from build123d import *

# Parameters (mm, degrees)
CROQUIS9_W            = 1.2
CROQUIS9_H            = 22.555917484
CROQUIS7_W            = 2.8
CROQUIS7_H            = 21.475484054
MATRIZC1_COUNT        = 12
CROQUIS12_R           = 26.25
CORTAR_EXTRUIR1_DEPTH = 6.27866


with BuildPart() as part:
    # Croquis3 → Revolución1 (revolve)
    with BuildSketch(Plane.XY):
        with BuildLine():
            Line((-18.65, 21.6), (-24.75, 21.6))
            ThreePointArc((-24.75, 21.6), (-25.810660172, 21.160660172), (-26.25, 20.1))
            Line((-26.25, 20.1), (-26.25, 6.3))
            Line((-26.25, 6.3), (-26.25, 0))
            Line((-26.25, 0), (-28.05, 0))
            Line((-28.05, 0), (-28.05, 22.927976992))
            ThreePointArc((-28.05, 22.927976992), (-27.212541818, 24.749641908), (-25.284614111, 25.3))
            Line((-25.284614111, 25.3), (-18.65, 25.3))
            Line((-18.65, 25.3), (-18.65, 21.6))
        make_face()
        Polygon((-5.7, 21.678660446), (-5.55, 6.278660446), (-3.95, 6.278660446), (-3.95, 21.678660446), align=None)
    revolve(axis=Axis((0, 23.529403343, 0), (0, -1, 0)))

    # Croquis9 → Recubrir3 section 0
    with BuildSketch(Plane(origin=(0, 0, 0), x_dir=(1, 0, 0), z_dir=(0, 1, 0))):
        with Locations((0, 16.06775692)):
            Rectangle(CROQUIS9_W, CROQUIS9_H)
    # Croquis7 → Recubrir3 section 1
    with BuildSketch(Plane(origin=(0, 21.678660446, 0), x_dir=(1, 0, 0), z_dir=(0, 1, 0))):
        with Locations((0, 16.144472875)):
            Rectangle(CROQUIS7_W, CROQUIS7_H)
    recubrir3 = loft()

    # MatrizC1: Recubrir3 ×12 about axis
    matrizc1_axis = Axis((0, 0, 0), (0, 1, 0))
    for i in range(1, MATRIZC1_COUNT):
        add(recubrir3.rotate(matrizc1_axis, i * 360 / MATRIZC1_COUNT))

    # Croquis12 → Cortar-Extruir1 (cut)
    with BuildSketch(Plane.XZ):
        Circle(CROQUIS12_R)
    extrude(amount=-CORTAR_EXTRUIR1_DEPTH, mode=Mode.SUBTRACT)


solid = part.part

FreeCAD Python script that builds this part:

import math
import FreeCAD as App
import Part
import Sketcher
from FreeCAD import Vector
Q = App.Units.Quantity

doc = App.newDocument("Part")
params = doc.addObject("Spreadsheet::Sheet", "Params")
for row, (alias, value) in enumerate([
    ("sketch1_radius", "2.4 mm"),
    ("sketch1_radius2", "1.5 mm"),
    ("sketch1_width", "6.1 mm"),
    ("sketch1_width2", "1.8 mm"),
    ("sketch1_width3", "1.6 mm"),
    ("revolution_angle", "360 deg"),
    ("sketch2_width", "1.2 mm"),
    ("sketch3_width", "2.8 mm"),
    ("sketch4_diameter", "52.5 mm"),
    ("pocket1_length", "6.27866 mm"),
], start=1):
    params.set(f"A{row}", alias)
    params.set(f"B{row}", "=" + value)
    params.setAlias(f"B{row}", alias)

body = doc.addObject("PartDesign::Body", "Body")
body.AllowCompound = True

# Sketch on XY plane
sketch1 = body.newObject("Sketcher::SketchObject", "Sketch")
sketch1.AttachmentSupport = (doc.getObject("XY_Plane"), [""])
sketch1.MapMode = "FlatFace"
sketch1.addGeometry(Part.LineSegment(Vector(-24.8, 21.6, 0), Vector(-18.6, 21.6, 0)), False)
sketch1.addGeometry(Part.LineSegment(Vector(-18.6, 21.6, 0), Vector(-18.6, 25.3, 0)), False)
sketch1.addGeometry(Part.LineSegment(Vector(-18.6, 25.3, 0), Vector(-25.3, 25.3, 0)), False)
sketch1.addGeometry(Part.ArcOfCircle(Part.Circle(Vector(-25.6, 22.9, 0), Vector(0, 0, 1), 2.4), math.radians(81), math.radians(180)), False)
sketch1.addGeometry(Part.LineSegment(Vector(-28.1, 22.9, 0), Vector(-28.1, 0, 0)), False)
sketch1.addGeometry(Part.LineSegment(Vector(-28.1, 0, 0), Vector(-26.2, 0, 0)), False)
sketch1.addGeometry(Part.LineSegment(Vector(-26.2, 0, 0), Vector(-26.2, 20.1, 0)), False)
sketch1.addGeometry(Part.ArcOfCircle(Part.Circle(Vector(-24.8, 20.1, 0), Vector(0, 0, 1), 1.5), math.radians(90), math.radians(180)), False)
sketch1.addGeometry(Part.LineSegment(Vector(-5.7, 21.7, 0), Vector(-5.5, 6.3, 0)), False)
sketch1.addGeometry(Part.LineSegment(Vector(-5.5, 6.3, 0), Vector(-4, 6.3, 0)), False)
sketch1.addGeometry(Part.LineSegment(Vector(-4, 6.3, 0), Vector(-4, 21.7, 0)), False)
sketch1.addGeometry(Part.LineSegment(Vector(-4, 21.7, 0), Vector(-5.7, 21.7, 0)), False)
sketch1.addConstraint(Sketcher.Constraint("Coincident", 0, 2, 1, 1))
sketch1.addConstraint(Sketcher.Constraint("Coincident", 1, 2, 2, 1))
sketch1.addConstraint(Sketcher.Constraint("Coincident", 2, 2, 3, 1))
sketch1.addConstraint(Sketcher.Constraint("Tangent", 3, 2, 4, 1))
sketch1.addConstraint(Sketcher.Constraint("Coincident", 4, 2, 5, 1))
sketch1.addConstraint(Sketcher.Constraint("Coincident", 5, 2, 6, 1))
sketch1.addConstraint(Sketcher.Constraint("Tangent", 6, 2, 7, 2))
sketch1.addConstraint(Sketcher.Constraint("Tangent", 7, 1, 0, 1))
sketch1.addConstraint(Sketcher.Constraint("Coincident", 8, 2, 9, 1))
sketch1.addConstraint(Sketcher.Constraint("Coincident", 9, 2, 10, 1))
sketch1.addConstraint(Sketcher.Constraint("Coincident", 10, 2, 11, 1))
sketch1.addConstraint(Sketcher.Constraint("Coincident", 11, 2, 8, 1))
sketch1.addConstraint(Sketcher.Constraint("Horizontal", 0))
sketch1.addConstraint(Sketcher.Constraint("Vertical", 1))
sketch1.addConstraint(Sketcher.Constraint("Horizontal", 2))
sketch1.addConstraint(Sketcher.Constraint("Vertical", 4))
sketch1.addConstraint(Sketcher.Constraint("Horizontal", 5))
sketch1.addConstraint(Sketcher.Constraint("Vertical", 6))
sketch1.addConstraint(Sketcher.Constraint("Horizontal", 9))
sketch1.addConstraint(Sketcher.Constraint("Vertical", 10))
sketch1.addConstraint(Sketcher.Constraint("Horizontal", 11))
sketch1.addConstraint(Sketcher.Constraint("PointOnObject", 4, 2, -1))
sketch1.addConstraint(Sketcher.Constraint("Radius", 3, Q("2.4 mm")))
sketch1.addConstraint(Sketcher.Constraint("Radius", 7, Q("1.5 mm")))
sketch1.addConstraint(Sketcher.Constraint("DistanceX", 0, 1, 0, 2, Q("6.1 mm")))
sketch1.addConstraint(Sketcher.Constraint("DistanceX", 5, 1, 5, 2, Q("1.8 mm")))
sketch1.addConstraint(Sketcher.Constraint("DistanceX", 9, 1, 9, 2, Q("1.6 mm")))
sketch1.addConstraint(Sketcher.Constraint("DistanceY", 1, 1, 1, 2, Q("3.7 mm")))
sketch1.addConstraint(Sketcher.Constraint("DistanceY", 6, 1, 6, 2, Q("20.1 mm")))
sketch1.addConstraint(Sketcher.Constraint("DistanceY", 10, 1, 10, 2, Q("15.4 mm")))
sketch1.addConstraint(Sketcher.Constraint("DistanceX", 11, 2, 11, 1, Q("1.75 mm")))
sketch1.addConstraint(Sketcher.Constraint("DistanceX", 11, 2, -1, 1, Q("5.7 mm")))
sketch1.addConstraint(Sketcher.Constraint("DistanceX", 0, 2, 8, 2, Q("13.1 mm")))
sketch1.addConstraint(Sketcher.Constraint("DistanceX", 2, 2, 2, 1, Q("6.634614 mm")))
sketch1.addConstraint(Sketcher.Constraint("DistanceY", -1, 1, 8, 2, Q("6.27866 mm")))
sketch1.setExpression("Constraints[22]", "Params.sketch1_radius")
sketch1.setExpression("Constraints[23]", "Params.sketch1_radius2")
sketch1.setExpression("Constraints[24]", "Params.sketch1_width")
sketch1.setExpression("Constraints[25]", "Params.sketch1_width2")
sketch1.setExpression("Constraints[26]", "Params.sketch1_width3")
revolution = body.newObject("PartDesign::Revolution", "Revolution")
revolution.Profile = sketch1
revolution.ReferenceAxis = (sketch1, ["V_Axis"])
revolution.setExpression("Angle", "Params.revolution_angle")

# Sketch on XZ plane
sketch2 = body.newObject("Sketcher::SketchObject", "Sketch001")
sketch2.AttachmentSupport = (doc.getObject("XZ_Plane"), [""])
sketch2.MapMode = "FlatFace"
sketch2.addGeometry(Part.LineSegment(Vector(-0.6, -27.3, 0), Vector(-0.6, -4.8, 0)), False)
sketch2.addGeometry(Part.LineSegment(Vector(-0.6, -4.8, 0), Vector(0.6, -4.8, 0)), False)
sketch2.addGeometry(Part.LineSegment(Vector(0.6, -4.8, 0), Vector(0.6, -27.3, 0)), False)
sketch2.addGeometry(Part.LineSegment(Vector(0.6, -27.3, 0), Vector(-0.6, -27.3, 0)), False)
sketch2.addConstraint(Sketcher.Constraint("Coincident", 0, 2, 1, 1))
sketch2.addConstraint(Sketcher.Constraint("Coincident", 1, 2, 2, 1))
sketch2.addConstraint(Sketcher.Constraint("Coincident", 2, 2, 3, 1))
sketch2.addConstraint(Sketcher.Constraint("Coincident", 3, 2, 0, 1))
sketch2.addConstraint(Sketcher.Constraint("Vertical", 0))
sketch2.addConstraint(Sketcher.Constraint("Horizontal", 1))
sketch2.addConstraint(Sketcher.Constraint("Vertical", 2))
sketch2.addConstraint(Sketcher.Constraint("Horizontal", 3))
sketch2.addConstraint(Sketcher.Constraint("DistanceX", 1, 1, 1, 2, Q("1.2 mm")))
sketch2.addConstraint(Sketcher.Constraint("DistanceX", 0, 2, -1, 1, Q("0.6 mm")))
sketch2.addConstraint(Sketcher.Constraint("DistanceY", 0, 2, -1, 1, Q("4.789798 mm")))
sketch2.addConstraint(Sketcher.Constraint("DistanceY", 0, 1, 0, 2, Q("22.555917 mm")))
sketch2.setExpression("Constraints[8]", "Params.sketch2_width")

# Sketch on XZ plane
sketch3 = body.newObject("Sketcher::SketchObject", "Sketch002")
sketch3.AttachmentSupport = (doc.getObject("XZ_Plane"), [""])
sketch3.MapMode = "FlatFace"
sketch3.AttachmentOffset = App.Placement(Vector(0, 0, -21.67866), App.Rotation())
sketch3.addGeometry(Part.LineSegment(Vector(-1.4, -26.9, 0), Vector(-1.4, -5.4, 0)), False)
sketch3.addGeometry(Part.LineSegment(Vector(-1.4, -5.4, 0), Vector(1.4, -5.4, 0)), False)
sketch3.addGeometry(Part.LineSegment(Vector(1.4, -5.4, 0), Vector(1.4, -26.9, 0)), False)
sketch3.addGeometry(Part.LineSegment(Vector(1.4, -26.9, 0), Vector(-1.4, -26.9, 0)), False)
sketch3.addConstraint(Sketcher.Constraint("Coincident", 0, 2, 1, 1))
sketch3.addConstraint(Sketcher.Constraint("Coincident", 1, 2, 2, 1))
sketch3.addConstraint(Sketcher.Constraint("Coincident", 2, 2, 3, 1))
sketch3.addConstraint(Sketcher.Constraint("Coincident", 3, 2, 0, 1))
sketch3.addConstraint(Sketcher.Constraint("Vertical", 0))
sketch3.addConstraint(Sketcher.Constraint("Horizontal", 1))
sketch3.addConstraint(Sketcher.Constraint("Vertical", 2))
sketch3.addConstraint(Sketcher.Constraint("Horizontal", 3))
sketch3.addConstraint(Sketcher.Constraint("DistanceX", 1, 1, 1, 2, Q("2.8 mm")))
sketch3.addConstraint(Sketcher.Constraint("DistanceX", 0, 2, -1, 1, Q("1.4 mm")))
sketch3.addConstraint(Sketcher.Constraint("DistanceY", 0, 1, 0, 2, Q("21.475484 mm")))
sketch3.addConstraint(Sketcher.Constraint("DistanceY", 0, 2, -1, 1, Q("5.406731 mm")))
sketch3.setExpression("Constraints[8]", "Params.sketch3_width")

additiveloft = body.newObject("PartDesign::AdditiveLoft", "AdditiveLoft")
additiveloft.Profile = sketch2
additiveloft.Sections = [sketch3]
doc.recompute()

polarpattern = body.newObject("PartDesign::PolarPattern", "PolarPattern")
polarpattern.Originals = [additiveloft]
polarpattern.Axis = (doc.getObject("Y_Axis"), [""])
polarpattern.Angle = 360
polarpattern.Occurrences = 12
body.Tip = polarpattern

# Sketch on XZ plane
sketch4 = body.newObject("Sketcher::SketchObject", "Sketch003")
sketch4.AttachmentSupport = (doc.getObject("XZ_Plane"), [""])
sketch4.MapMode = "FlatFace"
sketch4.addGeometry(Part.Circle(Vector(0, 0, 0), Vector(0, 0, 1), 26), False)
sketch4.addConstraint(Sketcher.Constraint("Coincident", 0, 3, -1, 1))
sketch4.addConstraint(Sketcher.Constraint("Diameter", 0, Q("52.5 mm")))
sketch4.setExpression("Constraints[1]", "Params.sketch4_diameter")
pocket1 = body.newObject("PartDesign::Pocket", "Pocket")
pocket1.Profile = sketch4
pocket1.setExpression("Length", "Params.pocket1_length")

doc.recompute()
